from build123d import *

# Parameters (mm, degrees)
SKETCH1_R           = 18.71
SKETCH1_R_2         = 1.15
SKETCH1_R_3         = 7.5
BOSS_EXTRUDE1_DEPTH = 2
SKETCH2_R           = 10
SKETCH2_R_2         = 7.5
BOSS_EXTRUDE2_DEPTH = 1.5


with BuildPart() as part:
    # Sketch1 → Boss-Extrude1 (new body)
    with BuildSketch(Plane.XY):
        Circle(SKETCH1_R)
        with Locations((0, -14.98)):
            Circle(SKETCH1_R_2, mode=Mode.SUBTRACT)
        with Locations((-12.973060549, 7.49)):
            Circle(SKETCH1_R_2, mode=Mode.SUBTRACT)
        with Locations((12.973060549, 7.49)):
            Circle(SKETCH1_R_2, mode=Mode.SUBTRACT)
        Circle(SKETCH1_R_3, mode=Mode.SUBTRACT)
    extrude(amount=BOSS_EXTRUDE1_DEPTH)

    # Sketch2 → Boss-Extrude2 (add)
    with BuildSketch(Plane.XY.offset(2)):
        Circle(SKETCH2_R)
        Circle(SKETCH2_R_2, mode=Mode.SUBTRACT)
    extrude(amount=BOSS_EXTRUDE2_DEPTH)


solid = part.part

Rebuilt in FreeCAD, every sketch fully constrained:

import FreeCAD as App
import Part
import Sketcher

doc = App.newDocument("Part")
body = doc.addObject("PartDesign::Body", "Body")

# Sketch on XY plane
sketch1 = body.newObject("Sketcher::SketchObject", "Sketch")
sketch1.AttachmentSupport = (doc.getObject("XY_Plane"), [""])
sketch1.MapMode = "FlatFace"
sketch1.addGeometry(Part.Circle(App.Vector(0, 0, 0), App.Vector(0, 0, 1), 18.7), False)
sketch1.addGeometry(Part.Circle(App.Vector(0, -15, 0), App.Vector(0, 0, 1), 1.1), False)
sketch1.addGeometry(Part.Circle(App.Vector(-13, 7.5, 0), App.Vector(0, 0, 1), 1.1), False)
sketch1.addGeometry(Part.Circle(App.Vector(0, 0, 0), App.Vector(0, 0, 1), 7.5), False)
sketch1.addGeometry(Part.Circle(App.Vector(13, 7.5, 0), App.Vector(0, 0, 1), 1.1), False)
sketch1.addConstraint(Sketcher.Constraint("Coincident", 0, 3, -1, 1))
sketch1.addConstraint(Sketcher.Constraint("Coincident", 3, 3, -1, 1))
sketch1.addConstraint(Sketcher.Constraint("Equal", 1, 2))
sketch1.addConstraint(Sketcher.Constraint("Equal", 2, 4))
sketch1.addConstraint(Sketcher.Constraint("Symmetric", 2, 3, 4, 3, -2))
sketch1.addConstraint(Sketcher.Constraint("PointOnObject", 1, 3, -2))
sketch1.addConstraint(Sketcher.Constraint("Diameter", 3, 15.0))
sketch1.addConstraint(Sketcher.Constraint("Diameter", 1, 2.3))
sketch1.addConstraint(Sketcher.Constraint("Diameter", 0, 37.42))
sketch1.addConstraint(Sketcher.Constraint("DistanceY", 1, 3, -1, 1, 14.98))
sketch1.addConstraint(Sketcher.Constraint("DistanceY", -1, 1, 2, 3, 7.49))
sketch1.addConstraint(Sketcher.Constraint("DistanceX", 2, 3, -1, 1, 12.973061))
pad1 = body.newObject("PartDesign::Pad", "Pad")
pad1.Profile = sketch1
pad1.Length = 2

# Sketch on XY plane
sketch2 = body.newObject("Sketcher::SketchObject", "Sketch001")
sketch2.AttachmentSupport = (doc.getObject("XY_Plane"), [""])
sketch2.MapMode = "FlatFace"
sketch2.AttachmentOffset = App.Placement(App.Vector(0, 0, 2), App.Rotation())
sketch2.addGeometry(Part.Circle(App.Vector(0, 0, 0), App.Vector(0, 0, 1), 10), False)
sketch2.addGeometry(Part.Circle(App.Vector(0, 0, 0), App.Vector(0, 0, 1), 8), False)
sketch2.addConstraint(Sketcher.Constraint("Coincident", 0, 3, -1, 1))
sketch2.addConstraint(Sketcher.Constraint("Coincident", 1, 3, -1, 1))
sketch2.addConstraint(Sketcher.Constraint("Diameter", 0, 20.0))
sketch2.addConstraint(Sketcher.Constraint("Diameter", 1, 15.0))
pad2 = body.newObject("PartDesign::Pad", "Pad001")
pad2.Profile = sketch2
pad2.Length = 1.5

doc.recompute()
